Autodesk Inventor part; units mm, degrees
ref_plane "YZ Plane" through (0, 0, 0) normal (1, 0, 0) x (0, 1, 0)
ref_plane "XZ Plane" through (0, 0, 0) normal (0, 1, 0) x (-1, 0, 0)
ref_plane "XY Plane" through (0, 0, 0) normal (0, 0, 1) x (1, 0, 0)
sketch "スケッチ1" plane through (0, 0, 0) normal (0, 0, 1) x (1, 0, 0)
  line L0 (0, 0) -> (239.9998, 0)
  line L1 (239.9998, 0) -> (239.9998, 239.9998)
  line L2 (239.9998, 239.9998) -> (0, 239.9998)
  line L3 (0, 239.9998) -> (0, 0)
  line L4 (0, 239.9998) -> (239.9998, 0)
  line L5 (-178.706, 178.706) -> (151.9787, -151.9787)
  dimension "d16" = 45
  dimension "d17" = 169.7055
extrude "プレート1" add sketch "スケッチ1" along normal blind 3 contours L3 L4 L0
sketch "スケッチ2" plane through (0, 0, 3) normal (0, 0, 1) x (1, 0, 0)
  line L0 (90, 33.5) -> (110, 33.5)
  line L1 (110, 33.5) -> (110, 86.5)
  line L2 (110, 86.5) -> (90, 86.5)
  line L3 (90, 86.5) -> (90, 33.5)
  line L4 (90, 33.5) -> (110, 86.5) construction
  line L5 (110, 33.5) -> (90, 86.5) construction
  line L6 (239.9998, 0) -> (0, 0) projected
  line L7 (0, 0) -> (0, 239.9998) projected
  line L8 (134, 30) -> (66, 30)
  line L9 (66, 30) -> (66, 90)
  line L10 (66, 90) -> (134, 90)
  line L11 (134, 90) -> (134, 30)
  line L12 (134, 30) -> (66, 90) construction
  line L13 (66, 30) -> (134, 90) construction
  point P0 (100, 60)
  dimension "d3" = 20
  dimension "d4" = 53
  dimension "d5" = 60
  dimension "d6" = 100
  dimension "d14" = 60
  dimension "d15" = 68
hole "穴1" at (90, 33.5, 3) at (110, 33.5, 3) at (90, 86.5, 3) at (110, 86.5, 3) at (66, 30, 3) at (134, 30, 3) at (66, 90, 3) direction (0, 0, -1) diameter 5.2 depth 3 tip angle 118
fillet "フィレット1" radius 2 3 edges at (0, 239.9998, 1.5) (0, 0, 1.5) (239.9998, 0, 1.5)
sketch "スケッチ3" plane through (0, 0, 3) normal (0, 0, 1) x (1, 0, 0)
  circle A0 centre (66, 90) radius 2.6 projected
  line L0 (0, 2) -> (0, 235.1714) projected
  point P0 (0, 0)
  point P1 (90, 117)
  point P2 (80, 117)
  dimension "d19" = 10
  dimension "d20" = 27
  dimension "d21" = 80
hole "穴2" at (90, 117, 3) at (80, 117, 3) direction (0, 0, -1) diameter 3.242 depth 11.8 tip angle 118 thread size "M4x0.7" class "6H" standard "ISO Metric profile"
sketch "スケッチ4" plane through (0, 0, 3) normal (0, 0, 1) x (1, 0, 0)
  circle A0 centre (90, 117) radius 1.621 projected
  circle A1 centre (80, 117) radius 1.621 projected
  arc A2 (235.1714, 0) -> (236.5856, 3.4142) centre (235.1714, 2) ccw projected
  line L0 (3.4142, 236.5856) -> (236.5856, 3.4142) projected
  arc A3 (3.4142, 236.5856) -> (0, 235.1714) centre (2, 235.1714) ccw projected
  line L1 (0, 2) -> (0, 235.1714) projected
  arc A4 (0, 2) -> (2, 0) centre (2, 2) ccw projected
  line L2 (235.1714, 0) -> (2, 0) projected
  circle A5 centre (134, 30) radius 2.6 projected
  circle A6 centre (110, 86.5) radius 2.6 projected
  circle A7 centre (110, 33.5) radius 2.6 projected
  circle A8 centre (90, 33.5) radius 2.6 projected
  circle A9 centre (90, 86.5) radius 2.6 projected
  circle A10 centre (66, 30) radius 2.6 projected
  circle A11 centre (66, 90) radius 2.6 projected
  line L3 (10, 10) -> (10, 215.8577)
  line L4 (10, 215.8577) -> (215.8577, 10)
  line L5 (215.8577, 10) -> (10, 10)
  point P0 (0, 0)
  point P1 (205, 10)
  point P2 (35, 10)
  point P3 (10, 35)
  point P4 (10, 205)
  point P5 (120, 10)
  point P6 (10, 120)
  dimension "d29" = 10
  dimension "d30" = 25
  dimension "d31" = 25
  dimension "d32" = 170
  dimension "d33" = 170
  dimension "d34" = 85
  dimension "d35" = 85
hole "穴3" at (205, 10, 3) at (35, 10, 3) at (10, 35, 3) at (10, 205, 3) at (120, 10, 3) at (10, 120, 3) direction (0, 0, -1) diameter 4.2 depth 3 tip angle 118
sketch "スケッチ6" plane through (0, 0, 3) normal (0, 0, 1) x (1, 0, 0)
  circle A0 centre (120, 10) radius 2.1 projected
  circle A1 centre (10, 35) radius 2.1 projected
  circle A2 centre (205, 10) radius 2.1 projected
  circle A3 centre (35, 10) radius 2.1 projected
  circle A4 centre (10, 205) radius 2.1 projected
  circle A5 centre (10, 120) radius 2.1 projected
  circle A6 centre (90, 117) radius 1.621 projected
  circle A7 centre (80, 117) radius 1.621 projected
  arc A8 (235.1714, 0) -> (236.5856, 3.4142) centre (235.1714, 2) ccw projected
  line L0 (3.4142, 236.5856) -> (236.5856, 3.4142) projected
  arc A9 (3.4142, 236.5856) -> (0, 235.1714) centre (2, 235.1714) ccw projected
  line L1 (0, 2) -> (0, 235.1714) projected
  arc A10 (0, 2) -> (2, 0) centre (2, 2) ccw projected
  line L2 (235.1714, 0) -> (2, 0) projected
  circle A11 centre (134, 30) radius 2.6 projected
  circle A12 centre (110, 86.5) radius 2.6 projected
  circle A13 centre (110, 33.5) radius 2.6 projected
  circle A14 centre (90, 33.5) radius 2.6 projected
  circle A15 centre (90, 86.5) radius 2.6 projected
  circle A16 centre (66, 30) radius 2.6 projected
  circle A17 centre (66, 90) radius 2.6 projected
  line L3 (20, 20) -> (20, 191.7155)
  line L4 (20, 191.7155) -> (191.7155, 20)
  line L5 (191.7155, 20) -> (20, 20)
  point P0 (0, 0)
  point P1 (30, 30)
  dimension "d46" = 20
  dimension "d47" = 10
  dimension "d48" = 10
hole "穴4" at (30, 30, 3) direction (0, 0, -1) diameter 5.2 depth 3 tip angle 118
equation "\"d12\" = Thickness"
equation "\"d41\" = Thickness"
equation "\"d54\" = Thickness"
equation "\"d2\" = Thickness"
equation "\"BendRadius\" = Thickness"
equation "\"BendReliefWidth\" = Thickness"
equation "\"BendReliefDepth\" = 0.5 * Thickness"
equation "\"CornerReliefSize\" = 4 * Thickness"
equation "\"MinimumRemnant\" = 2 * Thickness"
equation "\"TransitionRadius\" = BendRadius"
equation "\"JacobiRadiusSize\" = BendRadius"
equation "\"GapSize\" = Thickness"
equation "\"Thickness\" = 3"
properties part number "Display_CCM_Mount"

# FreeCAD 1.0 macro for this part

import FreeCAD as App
import Part
import Sketcher
from FreeCAD import Vector


def edges_at(feature, points):
    """Names of the edges that pass closest to the given points."""
    edges = feature.Shape.Edges
    near = lambda p: min(range(len(edges)), key=lambda i: edges[i].distToShape(Part.Vertex(*p))[0])
    return sorted({f"Edge{near(p) + 1}" for p in points})


def add_polygon(sketch, points):
    """Adds a closed chain of lines whose ends are joined by coincident constraints."""
    first, n = sketch.GeometryCount, len(points)
    for a, b in zip(points, points[1:] + points[:1]):
        sketch.addGeometry(Part.LineSegment(App.Vector(*a, 0), App.Vector(*b, 0)), False)
    for i in range(n):
        sketch.addConstraint(Sketcher.Constraint("Coincident", first + i, 2, first + (i + 1) % n, 1))

doc = App.newDocument("Part")
body = doc.addObject("PartDesign::Body", "Body")

sketch1 = doc.addObject("Sketcher::SketchObject", "Sketch")
body.addObject(sketch1)
sketch1.AttachmentSupport = (doc.XY_Plane, [""])
sketch1.MapMode = "FlatFace"
add_polygon(sketch1, [(0, 240), (0, 0), (240, 0)])
sketch1.addConstraint(Sketcher.Constraint("Vertical", 0))
sketch1.addConstraint(Sketcher.Constraint("Horizontal", 1))
sketch1.addConstraint(Sketcher.Constraint("Coincident", 0, 2, -1, 1))
sketch1.addConstraint(Sketcher.Constraint("Equal", 1, 0))
sketch1.addConstraint(Sketcher.Constraint("Distance", 2, 339.411))
pad1 = doc.addObject("PartDesign::Pad", "Pad")
body.addObject(pad1)
pad1.Profile = sketch1
pad1.Length = 3

sketch2 = doc.addObject("Sketcher::SketchObject", "Sketch001")
body.addObject(sketch2)
sketch2.AttachmentSupport = (doc.XY_Plane, [""])
sketch2.MapMode = "FlatFace"
sketch2.AttachmentOffset = App.Placement(Vector(0, 0, 3), App.Rotation())
sketch2.addGeometry(Part.Circle(Vector(90, 33.5, 0), Vector(0, 0, 1), 2.6), False)
sketch2.addGeometry(Part.Circle(Vector(110, 33.5, 0), Vector(0, 0, 1), 2.6), False)
sketch2.addGeometry(Part.Circle(Vector(90, 86.5, 0), Vector(0, 0, 1), 2.6), False)
sketch2.addGeometry(Part.Circle(Vector(110, 86.5, 0), Vector(0, 0, 1), 2.6), False)
sketch2.addGeometry(Part.Circle(Vector(66, 30, 0), Vector(0, 0, 1), 2.6), False)
sketch2.addGeometry(Part.Circle(Vector(134, 30, 0), Vector(0, 0, 1), 2.6), False)
sketch2.addGeometry(Part.Circle(Vector(66, 90, 0), Vector(0, 0, 1), 2.6), False)
sketch2.addConstraint(Sketcher.Constraint("Equal", 0, 1))
sketch2.addConstraint(Sketcher.Constraint("Equal", 1, 2))
sketch2.addConstraint(Sketcher.Constraint("Equal", 2, 3))
sketch2.addConstraint(Sketcher.Constraint("Equal", 3, 4))
sketch2.addConstraint(Sketcher.Constraint("Equal", 4, 5))
sketch2.addConstraint(Sketcher.Constraint("Equal", 5, 6))
sketch2.addConstraint(Sketcher.Constraint("Horizontal", 0, 3, 1, 3))
sketch2.addConstraint(Sketcher.Constraint("Horizontal", 2, 3, 3, 3))
sketch2.addConstraint(Sketcher.Constraint("Horizontal", 4, 3, 5, 3))
sketch2.addConstraint(Sketcher.Constraint("Vertical", 0, 3, 2, 3))
sketch2.addConstraint(Sketcher.Constraint("Vertical", 1, 3, 3, 3))
sketch2.addConstraint(Sketcher.Constraint("Vertical", 4, 3, 6, 3))
sketch2.addConstraint(Sketcher.Constraint("Diameter", 0, 5.2))
sketch2.addConstraint(Sketcher.Constraint("DistanceX", -1, 1, 0, 3, 90.0))
sketch2.addConstraint(Sketcher.Constraint("DistanceX", -1, 1, 1, 3, 110.0))
sketch2.addConstraint(Sketcher.Constraint("DistanceX", -1, 1, 4, 3, 66.0))
sketch2.addConstraint(Sketcher.Constraint("DistanceY", -1, 1, 4, 3, 30.0))
sketch2.addConstraint(Sketcher.Constraint("DistanceX", -1, 1, 5, 3, 134.0))
sketch2.addConstraint(Sketcher.Constraint("DistanceY", -1, 1, 6, 3, 90.0))
sketch2.addConstraint(Sketcher.Constraint("DistanceY", 0, 3, 2, 3, 53.0))
sketch2.addConstraint(Sketcher.Constraint("DistanceY", -1, 1, 0, 3, 33.5))
doc.recompute()
hole = doc.addObject("PartDesign::Hole", "Hole")
body.addObject(hole)
hole.Profile = sketch2
hole.ThreadType = "None"
hole.Diameter = 5.2
hole.DepthType = "Dimension"
hole.Depth = 3
hole.DrillPoint = "Angled"
hole.DrillPointAngle = 118
doc.recompute()

fillet = doc.addObject("PartDesign::Fillet", "Fillet")
body.addObject(fillet)
fillet.Base = (hole, edges_at(hole, [(0, 240, 1.5), (0, 0, 1.5), (240, 0, 1.5)]))
fillet.Radius = 2

sketch3 = doc.addObject("Sketcher::SketchObject", "Sketch002")
body.addObject(sketch3)
sketch3.AttachmentSupport = (doc.XY_Plane, [""])
sketch3.MapMode = "FlatFace"
sketch3.AttachmentOffset = App.Placement(Vector(0, 0, 3), App.Rotation())
sketch3.addGeometry(Part.Circle(Vector(90, 117, 0), Vector(0, 0, 1), 1.6), False)
sketch3.addGeometry(Part.Circle(Vector(80, 117, 0), Vector(0, 0, 1), 1.6), False)
sketch3.addConstraint(Sketcher.Constraint("Equal", 0, 1))
sketch3.addConstraint(Sketcher.Constraint("Horizontal", 0, 3, 1, 3))
sketch3.addConstraint(Sketcher.Constraint("Diameter", 0, 3.242))
sketch3.addConstraint(Sketcher.Constraint("DistanceX", -1, 1, 0, 3, 90.0))
sketch3.addConstraint(Sketcher.Constraint("DistanceY", -1, 1, 0, 3, 117.0))
sketch3.addConstraint(Sketcher.Constraint("DistanceX", -1, 1, 1, 3, 80.0))
doc.recompute()
hole2 = doc.addObject("PartDesign::Hole", "Hole001")
body.addObject(hole2)
hole2.Profile = sketch3
hole2.ThreadType = "None"
hole2.Diameter = 3.242
hole2.DepthType = "Dimension"
hole2.Depth = 11.8
hole2.DrillPoint = "Angled"
hole2.DrillPointAngle = 118

sketch4 = doc.addObject("Sketcher::SketchObject", "Sketch003")
body.addObject(sketch4)
sketch4.AttachmentSupport = (doc.XY_Plane, [""])
sketch4.MapMode = "FlatFace"
sketch4.AttachmentOffset = App.Placement(Vector(0, 0, 3), App.Rotation())
sketch4.addGeometry(Part.Circle(Vector(205, 10, 0), Vector(0, 0, 1), 2.1), False)
sketch4.addGeometry(Part.Circle(Vector(35, 10, 0), Vector(0, 0, 1), 2.1), False)
sketch4.addGeometry(Part.Circle(Vector(10, 35, 0), Vector(0, 0, 1), 2.1), False)
sketch4.addGeometry(Part.Circle(Vector(10, 205, 0), Vector(0, 0, 1), 2.1), False)
sketch4.addGeometry(Part.Circle(Vector(120, 10, 0), Vector(0, 0, 1), 2.1), False)
sketch4.addGeometry(Part.Circle(Vector(10, 120, 0), Vector(0, 0, 1), 2.1), False)
sketch4.addConstraint(Sketcher.Constraint("Equal", 0, 1))
sketch4.addConstraint(Sketcher.Constraint("Equal", 1, 2))
sketch4.addConstraint(Sketcher.Constraint("Equal", 2, 3))
sketch4.addConstraint(Sketcher.Constraint("Equal", 3, 4))
sketch4.addConstraint(Sketcher.Constraint("Equal", 4, 5))
sketch4.addConstraint(Sketcher.Constraint("Horizontal", 0, 3, 1, 3))
sketch4.addConstraint(Sketcher.Constraint("Horizontal", 1, 3, 4, 3))
sketch4.addConstraint(Sketcher.Constraint("Vertical", 2, 3, 3, 3))
sketch4.addConstraint(Sketcher.Constraint("Vertical", 3, 3, 5, 3))
sketch4.addConstraint(Sketcher.Constraint("Diameter", 0, 4.2))
sketch4.addConstraint(Sketcher.Constraint("DistanceX", -1, 1, 0, 3, 205.0))
sketch4.addConstraint(Sketcher.Constraint("DistanceY", -1, 1, 0, 3, 10.0))
sketch4.addConstraint(Sketcher.Constraint("DistanceX", -1, 1, 1, 3, 35.0))
sketch4.addConstraint(Sketcher.Constraint("DistanceX", -1, 1, 2, 3, 10.0))
sketch4.addConstraint(Sketcher.Constraint("DistanceY", -1, 1, 2, 3, 35.0))
sketch4.addConstraint(Sketcher.Constraint("DistanceY", -1, 1, 3, 3, 205.0))
sketch4.addConstraint(Sketcher.Constraint("DistanceX", -1, 1, 4, 3, 120.0))
sketch4.addConstraint(Sketcher.Constraint("DistanceY", -1, 1, 5, 3, 120.0))
doc.recompute()
hole3 = doc.addObject("PartDesign::Hole", "Hole002")
body.addObject(hole3)
hole3.Profile = sketch4
hole3.ThreadType = "None"
hole3.Diameter = 4.2
hole3.DepthType = "Dimension"
hole3.Depth = 3
hole3.DrillPoint = "Angled"
hole3.DrillPointAngle = 118

sketch5 = doc.addObject("Sketcher::SketchObject", "Sketch004")
body.addObject(sketch5)
sketch5.AttachmentSupport = (doc.XY_Plane, [""])
sketch5.MapMode = "FlatFace"
sketch5.AttachmentOffset = App.Placement(Vector(0, 0, 3), App.Rotation())
sketch5.addGeometry(Part.Circle(Vector(30, 30, 0), Vector(0, 0, 1), 2.6), False)
sketch5.addConstraint(Sketcher.Constraint("Diameter", 0, 5.2))
sketch5.addConstraint(Sketcher.Constraint("DistanceX", -1, 1, 0, 3, 30.0))
sketch5.addConstraint(Sketcher.Constraint("DistanceY", -1, 1, 0, 3, 30.0))
doc.recompute()
hole4 = doc.addObject("PartDesign::Hole", "Hole003")
body.addObject(hole4)
hole4.Profile = sketch5
hole4.ThreadType = "None"
hole4.Diameter = 5.2
hole4.DepthType = "Dimension"
hole4.Depth = 3
hole4.DrillPoint = "Angled"
hole4.DrillPointAngle = 118

doc.recompute()
